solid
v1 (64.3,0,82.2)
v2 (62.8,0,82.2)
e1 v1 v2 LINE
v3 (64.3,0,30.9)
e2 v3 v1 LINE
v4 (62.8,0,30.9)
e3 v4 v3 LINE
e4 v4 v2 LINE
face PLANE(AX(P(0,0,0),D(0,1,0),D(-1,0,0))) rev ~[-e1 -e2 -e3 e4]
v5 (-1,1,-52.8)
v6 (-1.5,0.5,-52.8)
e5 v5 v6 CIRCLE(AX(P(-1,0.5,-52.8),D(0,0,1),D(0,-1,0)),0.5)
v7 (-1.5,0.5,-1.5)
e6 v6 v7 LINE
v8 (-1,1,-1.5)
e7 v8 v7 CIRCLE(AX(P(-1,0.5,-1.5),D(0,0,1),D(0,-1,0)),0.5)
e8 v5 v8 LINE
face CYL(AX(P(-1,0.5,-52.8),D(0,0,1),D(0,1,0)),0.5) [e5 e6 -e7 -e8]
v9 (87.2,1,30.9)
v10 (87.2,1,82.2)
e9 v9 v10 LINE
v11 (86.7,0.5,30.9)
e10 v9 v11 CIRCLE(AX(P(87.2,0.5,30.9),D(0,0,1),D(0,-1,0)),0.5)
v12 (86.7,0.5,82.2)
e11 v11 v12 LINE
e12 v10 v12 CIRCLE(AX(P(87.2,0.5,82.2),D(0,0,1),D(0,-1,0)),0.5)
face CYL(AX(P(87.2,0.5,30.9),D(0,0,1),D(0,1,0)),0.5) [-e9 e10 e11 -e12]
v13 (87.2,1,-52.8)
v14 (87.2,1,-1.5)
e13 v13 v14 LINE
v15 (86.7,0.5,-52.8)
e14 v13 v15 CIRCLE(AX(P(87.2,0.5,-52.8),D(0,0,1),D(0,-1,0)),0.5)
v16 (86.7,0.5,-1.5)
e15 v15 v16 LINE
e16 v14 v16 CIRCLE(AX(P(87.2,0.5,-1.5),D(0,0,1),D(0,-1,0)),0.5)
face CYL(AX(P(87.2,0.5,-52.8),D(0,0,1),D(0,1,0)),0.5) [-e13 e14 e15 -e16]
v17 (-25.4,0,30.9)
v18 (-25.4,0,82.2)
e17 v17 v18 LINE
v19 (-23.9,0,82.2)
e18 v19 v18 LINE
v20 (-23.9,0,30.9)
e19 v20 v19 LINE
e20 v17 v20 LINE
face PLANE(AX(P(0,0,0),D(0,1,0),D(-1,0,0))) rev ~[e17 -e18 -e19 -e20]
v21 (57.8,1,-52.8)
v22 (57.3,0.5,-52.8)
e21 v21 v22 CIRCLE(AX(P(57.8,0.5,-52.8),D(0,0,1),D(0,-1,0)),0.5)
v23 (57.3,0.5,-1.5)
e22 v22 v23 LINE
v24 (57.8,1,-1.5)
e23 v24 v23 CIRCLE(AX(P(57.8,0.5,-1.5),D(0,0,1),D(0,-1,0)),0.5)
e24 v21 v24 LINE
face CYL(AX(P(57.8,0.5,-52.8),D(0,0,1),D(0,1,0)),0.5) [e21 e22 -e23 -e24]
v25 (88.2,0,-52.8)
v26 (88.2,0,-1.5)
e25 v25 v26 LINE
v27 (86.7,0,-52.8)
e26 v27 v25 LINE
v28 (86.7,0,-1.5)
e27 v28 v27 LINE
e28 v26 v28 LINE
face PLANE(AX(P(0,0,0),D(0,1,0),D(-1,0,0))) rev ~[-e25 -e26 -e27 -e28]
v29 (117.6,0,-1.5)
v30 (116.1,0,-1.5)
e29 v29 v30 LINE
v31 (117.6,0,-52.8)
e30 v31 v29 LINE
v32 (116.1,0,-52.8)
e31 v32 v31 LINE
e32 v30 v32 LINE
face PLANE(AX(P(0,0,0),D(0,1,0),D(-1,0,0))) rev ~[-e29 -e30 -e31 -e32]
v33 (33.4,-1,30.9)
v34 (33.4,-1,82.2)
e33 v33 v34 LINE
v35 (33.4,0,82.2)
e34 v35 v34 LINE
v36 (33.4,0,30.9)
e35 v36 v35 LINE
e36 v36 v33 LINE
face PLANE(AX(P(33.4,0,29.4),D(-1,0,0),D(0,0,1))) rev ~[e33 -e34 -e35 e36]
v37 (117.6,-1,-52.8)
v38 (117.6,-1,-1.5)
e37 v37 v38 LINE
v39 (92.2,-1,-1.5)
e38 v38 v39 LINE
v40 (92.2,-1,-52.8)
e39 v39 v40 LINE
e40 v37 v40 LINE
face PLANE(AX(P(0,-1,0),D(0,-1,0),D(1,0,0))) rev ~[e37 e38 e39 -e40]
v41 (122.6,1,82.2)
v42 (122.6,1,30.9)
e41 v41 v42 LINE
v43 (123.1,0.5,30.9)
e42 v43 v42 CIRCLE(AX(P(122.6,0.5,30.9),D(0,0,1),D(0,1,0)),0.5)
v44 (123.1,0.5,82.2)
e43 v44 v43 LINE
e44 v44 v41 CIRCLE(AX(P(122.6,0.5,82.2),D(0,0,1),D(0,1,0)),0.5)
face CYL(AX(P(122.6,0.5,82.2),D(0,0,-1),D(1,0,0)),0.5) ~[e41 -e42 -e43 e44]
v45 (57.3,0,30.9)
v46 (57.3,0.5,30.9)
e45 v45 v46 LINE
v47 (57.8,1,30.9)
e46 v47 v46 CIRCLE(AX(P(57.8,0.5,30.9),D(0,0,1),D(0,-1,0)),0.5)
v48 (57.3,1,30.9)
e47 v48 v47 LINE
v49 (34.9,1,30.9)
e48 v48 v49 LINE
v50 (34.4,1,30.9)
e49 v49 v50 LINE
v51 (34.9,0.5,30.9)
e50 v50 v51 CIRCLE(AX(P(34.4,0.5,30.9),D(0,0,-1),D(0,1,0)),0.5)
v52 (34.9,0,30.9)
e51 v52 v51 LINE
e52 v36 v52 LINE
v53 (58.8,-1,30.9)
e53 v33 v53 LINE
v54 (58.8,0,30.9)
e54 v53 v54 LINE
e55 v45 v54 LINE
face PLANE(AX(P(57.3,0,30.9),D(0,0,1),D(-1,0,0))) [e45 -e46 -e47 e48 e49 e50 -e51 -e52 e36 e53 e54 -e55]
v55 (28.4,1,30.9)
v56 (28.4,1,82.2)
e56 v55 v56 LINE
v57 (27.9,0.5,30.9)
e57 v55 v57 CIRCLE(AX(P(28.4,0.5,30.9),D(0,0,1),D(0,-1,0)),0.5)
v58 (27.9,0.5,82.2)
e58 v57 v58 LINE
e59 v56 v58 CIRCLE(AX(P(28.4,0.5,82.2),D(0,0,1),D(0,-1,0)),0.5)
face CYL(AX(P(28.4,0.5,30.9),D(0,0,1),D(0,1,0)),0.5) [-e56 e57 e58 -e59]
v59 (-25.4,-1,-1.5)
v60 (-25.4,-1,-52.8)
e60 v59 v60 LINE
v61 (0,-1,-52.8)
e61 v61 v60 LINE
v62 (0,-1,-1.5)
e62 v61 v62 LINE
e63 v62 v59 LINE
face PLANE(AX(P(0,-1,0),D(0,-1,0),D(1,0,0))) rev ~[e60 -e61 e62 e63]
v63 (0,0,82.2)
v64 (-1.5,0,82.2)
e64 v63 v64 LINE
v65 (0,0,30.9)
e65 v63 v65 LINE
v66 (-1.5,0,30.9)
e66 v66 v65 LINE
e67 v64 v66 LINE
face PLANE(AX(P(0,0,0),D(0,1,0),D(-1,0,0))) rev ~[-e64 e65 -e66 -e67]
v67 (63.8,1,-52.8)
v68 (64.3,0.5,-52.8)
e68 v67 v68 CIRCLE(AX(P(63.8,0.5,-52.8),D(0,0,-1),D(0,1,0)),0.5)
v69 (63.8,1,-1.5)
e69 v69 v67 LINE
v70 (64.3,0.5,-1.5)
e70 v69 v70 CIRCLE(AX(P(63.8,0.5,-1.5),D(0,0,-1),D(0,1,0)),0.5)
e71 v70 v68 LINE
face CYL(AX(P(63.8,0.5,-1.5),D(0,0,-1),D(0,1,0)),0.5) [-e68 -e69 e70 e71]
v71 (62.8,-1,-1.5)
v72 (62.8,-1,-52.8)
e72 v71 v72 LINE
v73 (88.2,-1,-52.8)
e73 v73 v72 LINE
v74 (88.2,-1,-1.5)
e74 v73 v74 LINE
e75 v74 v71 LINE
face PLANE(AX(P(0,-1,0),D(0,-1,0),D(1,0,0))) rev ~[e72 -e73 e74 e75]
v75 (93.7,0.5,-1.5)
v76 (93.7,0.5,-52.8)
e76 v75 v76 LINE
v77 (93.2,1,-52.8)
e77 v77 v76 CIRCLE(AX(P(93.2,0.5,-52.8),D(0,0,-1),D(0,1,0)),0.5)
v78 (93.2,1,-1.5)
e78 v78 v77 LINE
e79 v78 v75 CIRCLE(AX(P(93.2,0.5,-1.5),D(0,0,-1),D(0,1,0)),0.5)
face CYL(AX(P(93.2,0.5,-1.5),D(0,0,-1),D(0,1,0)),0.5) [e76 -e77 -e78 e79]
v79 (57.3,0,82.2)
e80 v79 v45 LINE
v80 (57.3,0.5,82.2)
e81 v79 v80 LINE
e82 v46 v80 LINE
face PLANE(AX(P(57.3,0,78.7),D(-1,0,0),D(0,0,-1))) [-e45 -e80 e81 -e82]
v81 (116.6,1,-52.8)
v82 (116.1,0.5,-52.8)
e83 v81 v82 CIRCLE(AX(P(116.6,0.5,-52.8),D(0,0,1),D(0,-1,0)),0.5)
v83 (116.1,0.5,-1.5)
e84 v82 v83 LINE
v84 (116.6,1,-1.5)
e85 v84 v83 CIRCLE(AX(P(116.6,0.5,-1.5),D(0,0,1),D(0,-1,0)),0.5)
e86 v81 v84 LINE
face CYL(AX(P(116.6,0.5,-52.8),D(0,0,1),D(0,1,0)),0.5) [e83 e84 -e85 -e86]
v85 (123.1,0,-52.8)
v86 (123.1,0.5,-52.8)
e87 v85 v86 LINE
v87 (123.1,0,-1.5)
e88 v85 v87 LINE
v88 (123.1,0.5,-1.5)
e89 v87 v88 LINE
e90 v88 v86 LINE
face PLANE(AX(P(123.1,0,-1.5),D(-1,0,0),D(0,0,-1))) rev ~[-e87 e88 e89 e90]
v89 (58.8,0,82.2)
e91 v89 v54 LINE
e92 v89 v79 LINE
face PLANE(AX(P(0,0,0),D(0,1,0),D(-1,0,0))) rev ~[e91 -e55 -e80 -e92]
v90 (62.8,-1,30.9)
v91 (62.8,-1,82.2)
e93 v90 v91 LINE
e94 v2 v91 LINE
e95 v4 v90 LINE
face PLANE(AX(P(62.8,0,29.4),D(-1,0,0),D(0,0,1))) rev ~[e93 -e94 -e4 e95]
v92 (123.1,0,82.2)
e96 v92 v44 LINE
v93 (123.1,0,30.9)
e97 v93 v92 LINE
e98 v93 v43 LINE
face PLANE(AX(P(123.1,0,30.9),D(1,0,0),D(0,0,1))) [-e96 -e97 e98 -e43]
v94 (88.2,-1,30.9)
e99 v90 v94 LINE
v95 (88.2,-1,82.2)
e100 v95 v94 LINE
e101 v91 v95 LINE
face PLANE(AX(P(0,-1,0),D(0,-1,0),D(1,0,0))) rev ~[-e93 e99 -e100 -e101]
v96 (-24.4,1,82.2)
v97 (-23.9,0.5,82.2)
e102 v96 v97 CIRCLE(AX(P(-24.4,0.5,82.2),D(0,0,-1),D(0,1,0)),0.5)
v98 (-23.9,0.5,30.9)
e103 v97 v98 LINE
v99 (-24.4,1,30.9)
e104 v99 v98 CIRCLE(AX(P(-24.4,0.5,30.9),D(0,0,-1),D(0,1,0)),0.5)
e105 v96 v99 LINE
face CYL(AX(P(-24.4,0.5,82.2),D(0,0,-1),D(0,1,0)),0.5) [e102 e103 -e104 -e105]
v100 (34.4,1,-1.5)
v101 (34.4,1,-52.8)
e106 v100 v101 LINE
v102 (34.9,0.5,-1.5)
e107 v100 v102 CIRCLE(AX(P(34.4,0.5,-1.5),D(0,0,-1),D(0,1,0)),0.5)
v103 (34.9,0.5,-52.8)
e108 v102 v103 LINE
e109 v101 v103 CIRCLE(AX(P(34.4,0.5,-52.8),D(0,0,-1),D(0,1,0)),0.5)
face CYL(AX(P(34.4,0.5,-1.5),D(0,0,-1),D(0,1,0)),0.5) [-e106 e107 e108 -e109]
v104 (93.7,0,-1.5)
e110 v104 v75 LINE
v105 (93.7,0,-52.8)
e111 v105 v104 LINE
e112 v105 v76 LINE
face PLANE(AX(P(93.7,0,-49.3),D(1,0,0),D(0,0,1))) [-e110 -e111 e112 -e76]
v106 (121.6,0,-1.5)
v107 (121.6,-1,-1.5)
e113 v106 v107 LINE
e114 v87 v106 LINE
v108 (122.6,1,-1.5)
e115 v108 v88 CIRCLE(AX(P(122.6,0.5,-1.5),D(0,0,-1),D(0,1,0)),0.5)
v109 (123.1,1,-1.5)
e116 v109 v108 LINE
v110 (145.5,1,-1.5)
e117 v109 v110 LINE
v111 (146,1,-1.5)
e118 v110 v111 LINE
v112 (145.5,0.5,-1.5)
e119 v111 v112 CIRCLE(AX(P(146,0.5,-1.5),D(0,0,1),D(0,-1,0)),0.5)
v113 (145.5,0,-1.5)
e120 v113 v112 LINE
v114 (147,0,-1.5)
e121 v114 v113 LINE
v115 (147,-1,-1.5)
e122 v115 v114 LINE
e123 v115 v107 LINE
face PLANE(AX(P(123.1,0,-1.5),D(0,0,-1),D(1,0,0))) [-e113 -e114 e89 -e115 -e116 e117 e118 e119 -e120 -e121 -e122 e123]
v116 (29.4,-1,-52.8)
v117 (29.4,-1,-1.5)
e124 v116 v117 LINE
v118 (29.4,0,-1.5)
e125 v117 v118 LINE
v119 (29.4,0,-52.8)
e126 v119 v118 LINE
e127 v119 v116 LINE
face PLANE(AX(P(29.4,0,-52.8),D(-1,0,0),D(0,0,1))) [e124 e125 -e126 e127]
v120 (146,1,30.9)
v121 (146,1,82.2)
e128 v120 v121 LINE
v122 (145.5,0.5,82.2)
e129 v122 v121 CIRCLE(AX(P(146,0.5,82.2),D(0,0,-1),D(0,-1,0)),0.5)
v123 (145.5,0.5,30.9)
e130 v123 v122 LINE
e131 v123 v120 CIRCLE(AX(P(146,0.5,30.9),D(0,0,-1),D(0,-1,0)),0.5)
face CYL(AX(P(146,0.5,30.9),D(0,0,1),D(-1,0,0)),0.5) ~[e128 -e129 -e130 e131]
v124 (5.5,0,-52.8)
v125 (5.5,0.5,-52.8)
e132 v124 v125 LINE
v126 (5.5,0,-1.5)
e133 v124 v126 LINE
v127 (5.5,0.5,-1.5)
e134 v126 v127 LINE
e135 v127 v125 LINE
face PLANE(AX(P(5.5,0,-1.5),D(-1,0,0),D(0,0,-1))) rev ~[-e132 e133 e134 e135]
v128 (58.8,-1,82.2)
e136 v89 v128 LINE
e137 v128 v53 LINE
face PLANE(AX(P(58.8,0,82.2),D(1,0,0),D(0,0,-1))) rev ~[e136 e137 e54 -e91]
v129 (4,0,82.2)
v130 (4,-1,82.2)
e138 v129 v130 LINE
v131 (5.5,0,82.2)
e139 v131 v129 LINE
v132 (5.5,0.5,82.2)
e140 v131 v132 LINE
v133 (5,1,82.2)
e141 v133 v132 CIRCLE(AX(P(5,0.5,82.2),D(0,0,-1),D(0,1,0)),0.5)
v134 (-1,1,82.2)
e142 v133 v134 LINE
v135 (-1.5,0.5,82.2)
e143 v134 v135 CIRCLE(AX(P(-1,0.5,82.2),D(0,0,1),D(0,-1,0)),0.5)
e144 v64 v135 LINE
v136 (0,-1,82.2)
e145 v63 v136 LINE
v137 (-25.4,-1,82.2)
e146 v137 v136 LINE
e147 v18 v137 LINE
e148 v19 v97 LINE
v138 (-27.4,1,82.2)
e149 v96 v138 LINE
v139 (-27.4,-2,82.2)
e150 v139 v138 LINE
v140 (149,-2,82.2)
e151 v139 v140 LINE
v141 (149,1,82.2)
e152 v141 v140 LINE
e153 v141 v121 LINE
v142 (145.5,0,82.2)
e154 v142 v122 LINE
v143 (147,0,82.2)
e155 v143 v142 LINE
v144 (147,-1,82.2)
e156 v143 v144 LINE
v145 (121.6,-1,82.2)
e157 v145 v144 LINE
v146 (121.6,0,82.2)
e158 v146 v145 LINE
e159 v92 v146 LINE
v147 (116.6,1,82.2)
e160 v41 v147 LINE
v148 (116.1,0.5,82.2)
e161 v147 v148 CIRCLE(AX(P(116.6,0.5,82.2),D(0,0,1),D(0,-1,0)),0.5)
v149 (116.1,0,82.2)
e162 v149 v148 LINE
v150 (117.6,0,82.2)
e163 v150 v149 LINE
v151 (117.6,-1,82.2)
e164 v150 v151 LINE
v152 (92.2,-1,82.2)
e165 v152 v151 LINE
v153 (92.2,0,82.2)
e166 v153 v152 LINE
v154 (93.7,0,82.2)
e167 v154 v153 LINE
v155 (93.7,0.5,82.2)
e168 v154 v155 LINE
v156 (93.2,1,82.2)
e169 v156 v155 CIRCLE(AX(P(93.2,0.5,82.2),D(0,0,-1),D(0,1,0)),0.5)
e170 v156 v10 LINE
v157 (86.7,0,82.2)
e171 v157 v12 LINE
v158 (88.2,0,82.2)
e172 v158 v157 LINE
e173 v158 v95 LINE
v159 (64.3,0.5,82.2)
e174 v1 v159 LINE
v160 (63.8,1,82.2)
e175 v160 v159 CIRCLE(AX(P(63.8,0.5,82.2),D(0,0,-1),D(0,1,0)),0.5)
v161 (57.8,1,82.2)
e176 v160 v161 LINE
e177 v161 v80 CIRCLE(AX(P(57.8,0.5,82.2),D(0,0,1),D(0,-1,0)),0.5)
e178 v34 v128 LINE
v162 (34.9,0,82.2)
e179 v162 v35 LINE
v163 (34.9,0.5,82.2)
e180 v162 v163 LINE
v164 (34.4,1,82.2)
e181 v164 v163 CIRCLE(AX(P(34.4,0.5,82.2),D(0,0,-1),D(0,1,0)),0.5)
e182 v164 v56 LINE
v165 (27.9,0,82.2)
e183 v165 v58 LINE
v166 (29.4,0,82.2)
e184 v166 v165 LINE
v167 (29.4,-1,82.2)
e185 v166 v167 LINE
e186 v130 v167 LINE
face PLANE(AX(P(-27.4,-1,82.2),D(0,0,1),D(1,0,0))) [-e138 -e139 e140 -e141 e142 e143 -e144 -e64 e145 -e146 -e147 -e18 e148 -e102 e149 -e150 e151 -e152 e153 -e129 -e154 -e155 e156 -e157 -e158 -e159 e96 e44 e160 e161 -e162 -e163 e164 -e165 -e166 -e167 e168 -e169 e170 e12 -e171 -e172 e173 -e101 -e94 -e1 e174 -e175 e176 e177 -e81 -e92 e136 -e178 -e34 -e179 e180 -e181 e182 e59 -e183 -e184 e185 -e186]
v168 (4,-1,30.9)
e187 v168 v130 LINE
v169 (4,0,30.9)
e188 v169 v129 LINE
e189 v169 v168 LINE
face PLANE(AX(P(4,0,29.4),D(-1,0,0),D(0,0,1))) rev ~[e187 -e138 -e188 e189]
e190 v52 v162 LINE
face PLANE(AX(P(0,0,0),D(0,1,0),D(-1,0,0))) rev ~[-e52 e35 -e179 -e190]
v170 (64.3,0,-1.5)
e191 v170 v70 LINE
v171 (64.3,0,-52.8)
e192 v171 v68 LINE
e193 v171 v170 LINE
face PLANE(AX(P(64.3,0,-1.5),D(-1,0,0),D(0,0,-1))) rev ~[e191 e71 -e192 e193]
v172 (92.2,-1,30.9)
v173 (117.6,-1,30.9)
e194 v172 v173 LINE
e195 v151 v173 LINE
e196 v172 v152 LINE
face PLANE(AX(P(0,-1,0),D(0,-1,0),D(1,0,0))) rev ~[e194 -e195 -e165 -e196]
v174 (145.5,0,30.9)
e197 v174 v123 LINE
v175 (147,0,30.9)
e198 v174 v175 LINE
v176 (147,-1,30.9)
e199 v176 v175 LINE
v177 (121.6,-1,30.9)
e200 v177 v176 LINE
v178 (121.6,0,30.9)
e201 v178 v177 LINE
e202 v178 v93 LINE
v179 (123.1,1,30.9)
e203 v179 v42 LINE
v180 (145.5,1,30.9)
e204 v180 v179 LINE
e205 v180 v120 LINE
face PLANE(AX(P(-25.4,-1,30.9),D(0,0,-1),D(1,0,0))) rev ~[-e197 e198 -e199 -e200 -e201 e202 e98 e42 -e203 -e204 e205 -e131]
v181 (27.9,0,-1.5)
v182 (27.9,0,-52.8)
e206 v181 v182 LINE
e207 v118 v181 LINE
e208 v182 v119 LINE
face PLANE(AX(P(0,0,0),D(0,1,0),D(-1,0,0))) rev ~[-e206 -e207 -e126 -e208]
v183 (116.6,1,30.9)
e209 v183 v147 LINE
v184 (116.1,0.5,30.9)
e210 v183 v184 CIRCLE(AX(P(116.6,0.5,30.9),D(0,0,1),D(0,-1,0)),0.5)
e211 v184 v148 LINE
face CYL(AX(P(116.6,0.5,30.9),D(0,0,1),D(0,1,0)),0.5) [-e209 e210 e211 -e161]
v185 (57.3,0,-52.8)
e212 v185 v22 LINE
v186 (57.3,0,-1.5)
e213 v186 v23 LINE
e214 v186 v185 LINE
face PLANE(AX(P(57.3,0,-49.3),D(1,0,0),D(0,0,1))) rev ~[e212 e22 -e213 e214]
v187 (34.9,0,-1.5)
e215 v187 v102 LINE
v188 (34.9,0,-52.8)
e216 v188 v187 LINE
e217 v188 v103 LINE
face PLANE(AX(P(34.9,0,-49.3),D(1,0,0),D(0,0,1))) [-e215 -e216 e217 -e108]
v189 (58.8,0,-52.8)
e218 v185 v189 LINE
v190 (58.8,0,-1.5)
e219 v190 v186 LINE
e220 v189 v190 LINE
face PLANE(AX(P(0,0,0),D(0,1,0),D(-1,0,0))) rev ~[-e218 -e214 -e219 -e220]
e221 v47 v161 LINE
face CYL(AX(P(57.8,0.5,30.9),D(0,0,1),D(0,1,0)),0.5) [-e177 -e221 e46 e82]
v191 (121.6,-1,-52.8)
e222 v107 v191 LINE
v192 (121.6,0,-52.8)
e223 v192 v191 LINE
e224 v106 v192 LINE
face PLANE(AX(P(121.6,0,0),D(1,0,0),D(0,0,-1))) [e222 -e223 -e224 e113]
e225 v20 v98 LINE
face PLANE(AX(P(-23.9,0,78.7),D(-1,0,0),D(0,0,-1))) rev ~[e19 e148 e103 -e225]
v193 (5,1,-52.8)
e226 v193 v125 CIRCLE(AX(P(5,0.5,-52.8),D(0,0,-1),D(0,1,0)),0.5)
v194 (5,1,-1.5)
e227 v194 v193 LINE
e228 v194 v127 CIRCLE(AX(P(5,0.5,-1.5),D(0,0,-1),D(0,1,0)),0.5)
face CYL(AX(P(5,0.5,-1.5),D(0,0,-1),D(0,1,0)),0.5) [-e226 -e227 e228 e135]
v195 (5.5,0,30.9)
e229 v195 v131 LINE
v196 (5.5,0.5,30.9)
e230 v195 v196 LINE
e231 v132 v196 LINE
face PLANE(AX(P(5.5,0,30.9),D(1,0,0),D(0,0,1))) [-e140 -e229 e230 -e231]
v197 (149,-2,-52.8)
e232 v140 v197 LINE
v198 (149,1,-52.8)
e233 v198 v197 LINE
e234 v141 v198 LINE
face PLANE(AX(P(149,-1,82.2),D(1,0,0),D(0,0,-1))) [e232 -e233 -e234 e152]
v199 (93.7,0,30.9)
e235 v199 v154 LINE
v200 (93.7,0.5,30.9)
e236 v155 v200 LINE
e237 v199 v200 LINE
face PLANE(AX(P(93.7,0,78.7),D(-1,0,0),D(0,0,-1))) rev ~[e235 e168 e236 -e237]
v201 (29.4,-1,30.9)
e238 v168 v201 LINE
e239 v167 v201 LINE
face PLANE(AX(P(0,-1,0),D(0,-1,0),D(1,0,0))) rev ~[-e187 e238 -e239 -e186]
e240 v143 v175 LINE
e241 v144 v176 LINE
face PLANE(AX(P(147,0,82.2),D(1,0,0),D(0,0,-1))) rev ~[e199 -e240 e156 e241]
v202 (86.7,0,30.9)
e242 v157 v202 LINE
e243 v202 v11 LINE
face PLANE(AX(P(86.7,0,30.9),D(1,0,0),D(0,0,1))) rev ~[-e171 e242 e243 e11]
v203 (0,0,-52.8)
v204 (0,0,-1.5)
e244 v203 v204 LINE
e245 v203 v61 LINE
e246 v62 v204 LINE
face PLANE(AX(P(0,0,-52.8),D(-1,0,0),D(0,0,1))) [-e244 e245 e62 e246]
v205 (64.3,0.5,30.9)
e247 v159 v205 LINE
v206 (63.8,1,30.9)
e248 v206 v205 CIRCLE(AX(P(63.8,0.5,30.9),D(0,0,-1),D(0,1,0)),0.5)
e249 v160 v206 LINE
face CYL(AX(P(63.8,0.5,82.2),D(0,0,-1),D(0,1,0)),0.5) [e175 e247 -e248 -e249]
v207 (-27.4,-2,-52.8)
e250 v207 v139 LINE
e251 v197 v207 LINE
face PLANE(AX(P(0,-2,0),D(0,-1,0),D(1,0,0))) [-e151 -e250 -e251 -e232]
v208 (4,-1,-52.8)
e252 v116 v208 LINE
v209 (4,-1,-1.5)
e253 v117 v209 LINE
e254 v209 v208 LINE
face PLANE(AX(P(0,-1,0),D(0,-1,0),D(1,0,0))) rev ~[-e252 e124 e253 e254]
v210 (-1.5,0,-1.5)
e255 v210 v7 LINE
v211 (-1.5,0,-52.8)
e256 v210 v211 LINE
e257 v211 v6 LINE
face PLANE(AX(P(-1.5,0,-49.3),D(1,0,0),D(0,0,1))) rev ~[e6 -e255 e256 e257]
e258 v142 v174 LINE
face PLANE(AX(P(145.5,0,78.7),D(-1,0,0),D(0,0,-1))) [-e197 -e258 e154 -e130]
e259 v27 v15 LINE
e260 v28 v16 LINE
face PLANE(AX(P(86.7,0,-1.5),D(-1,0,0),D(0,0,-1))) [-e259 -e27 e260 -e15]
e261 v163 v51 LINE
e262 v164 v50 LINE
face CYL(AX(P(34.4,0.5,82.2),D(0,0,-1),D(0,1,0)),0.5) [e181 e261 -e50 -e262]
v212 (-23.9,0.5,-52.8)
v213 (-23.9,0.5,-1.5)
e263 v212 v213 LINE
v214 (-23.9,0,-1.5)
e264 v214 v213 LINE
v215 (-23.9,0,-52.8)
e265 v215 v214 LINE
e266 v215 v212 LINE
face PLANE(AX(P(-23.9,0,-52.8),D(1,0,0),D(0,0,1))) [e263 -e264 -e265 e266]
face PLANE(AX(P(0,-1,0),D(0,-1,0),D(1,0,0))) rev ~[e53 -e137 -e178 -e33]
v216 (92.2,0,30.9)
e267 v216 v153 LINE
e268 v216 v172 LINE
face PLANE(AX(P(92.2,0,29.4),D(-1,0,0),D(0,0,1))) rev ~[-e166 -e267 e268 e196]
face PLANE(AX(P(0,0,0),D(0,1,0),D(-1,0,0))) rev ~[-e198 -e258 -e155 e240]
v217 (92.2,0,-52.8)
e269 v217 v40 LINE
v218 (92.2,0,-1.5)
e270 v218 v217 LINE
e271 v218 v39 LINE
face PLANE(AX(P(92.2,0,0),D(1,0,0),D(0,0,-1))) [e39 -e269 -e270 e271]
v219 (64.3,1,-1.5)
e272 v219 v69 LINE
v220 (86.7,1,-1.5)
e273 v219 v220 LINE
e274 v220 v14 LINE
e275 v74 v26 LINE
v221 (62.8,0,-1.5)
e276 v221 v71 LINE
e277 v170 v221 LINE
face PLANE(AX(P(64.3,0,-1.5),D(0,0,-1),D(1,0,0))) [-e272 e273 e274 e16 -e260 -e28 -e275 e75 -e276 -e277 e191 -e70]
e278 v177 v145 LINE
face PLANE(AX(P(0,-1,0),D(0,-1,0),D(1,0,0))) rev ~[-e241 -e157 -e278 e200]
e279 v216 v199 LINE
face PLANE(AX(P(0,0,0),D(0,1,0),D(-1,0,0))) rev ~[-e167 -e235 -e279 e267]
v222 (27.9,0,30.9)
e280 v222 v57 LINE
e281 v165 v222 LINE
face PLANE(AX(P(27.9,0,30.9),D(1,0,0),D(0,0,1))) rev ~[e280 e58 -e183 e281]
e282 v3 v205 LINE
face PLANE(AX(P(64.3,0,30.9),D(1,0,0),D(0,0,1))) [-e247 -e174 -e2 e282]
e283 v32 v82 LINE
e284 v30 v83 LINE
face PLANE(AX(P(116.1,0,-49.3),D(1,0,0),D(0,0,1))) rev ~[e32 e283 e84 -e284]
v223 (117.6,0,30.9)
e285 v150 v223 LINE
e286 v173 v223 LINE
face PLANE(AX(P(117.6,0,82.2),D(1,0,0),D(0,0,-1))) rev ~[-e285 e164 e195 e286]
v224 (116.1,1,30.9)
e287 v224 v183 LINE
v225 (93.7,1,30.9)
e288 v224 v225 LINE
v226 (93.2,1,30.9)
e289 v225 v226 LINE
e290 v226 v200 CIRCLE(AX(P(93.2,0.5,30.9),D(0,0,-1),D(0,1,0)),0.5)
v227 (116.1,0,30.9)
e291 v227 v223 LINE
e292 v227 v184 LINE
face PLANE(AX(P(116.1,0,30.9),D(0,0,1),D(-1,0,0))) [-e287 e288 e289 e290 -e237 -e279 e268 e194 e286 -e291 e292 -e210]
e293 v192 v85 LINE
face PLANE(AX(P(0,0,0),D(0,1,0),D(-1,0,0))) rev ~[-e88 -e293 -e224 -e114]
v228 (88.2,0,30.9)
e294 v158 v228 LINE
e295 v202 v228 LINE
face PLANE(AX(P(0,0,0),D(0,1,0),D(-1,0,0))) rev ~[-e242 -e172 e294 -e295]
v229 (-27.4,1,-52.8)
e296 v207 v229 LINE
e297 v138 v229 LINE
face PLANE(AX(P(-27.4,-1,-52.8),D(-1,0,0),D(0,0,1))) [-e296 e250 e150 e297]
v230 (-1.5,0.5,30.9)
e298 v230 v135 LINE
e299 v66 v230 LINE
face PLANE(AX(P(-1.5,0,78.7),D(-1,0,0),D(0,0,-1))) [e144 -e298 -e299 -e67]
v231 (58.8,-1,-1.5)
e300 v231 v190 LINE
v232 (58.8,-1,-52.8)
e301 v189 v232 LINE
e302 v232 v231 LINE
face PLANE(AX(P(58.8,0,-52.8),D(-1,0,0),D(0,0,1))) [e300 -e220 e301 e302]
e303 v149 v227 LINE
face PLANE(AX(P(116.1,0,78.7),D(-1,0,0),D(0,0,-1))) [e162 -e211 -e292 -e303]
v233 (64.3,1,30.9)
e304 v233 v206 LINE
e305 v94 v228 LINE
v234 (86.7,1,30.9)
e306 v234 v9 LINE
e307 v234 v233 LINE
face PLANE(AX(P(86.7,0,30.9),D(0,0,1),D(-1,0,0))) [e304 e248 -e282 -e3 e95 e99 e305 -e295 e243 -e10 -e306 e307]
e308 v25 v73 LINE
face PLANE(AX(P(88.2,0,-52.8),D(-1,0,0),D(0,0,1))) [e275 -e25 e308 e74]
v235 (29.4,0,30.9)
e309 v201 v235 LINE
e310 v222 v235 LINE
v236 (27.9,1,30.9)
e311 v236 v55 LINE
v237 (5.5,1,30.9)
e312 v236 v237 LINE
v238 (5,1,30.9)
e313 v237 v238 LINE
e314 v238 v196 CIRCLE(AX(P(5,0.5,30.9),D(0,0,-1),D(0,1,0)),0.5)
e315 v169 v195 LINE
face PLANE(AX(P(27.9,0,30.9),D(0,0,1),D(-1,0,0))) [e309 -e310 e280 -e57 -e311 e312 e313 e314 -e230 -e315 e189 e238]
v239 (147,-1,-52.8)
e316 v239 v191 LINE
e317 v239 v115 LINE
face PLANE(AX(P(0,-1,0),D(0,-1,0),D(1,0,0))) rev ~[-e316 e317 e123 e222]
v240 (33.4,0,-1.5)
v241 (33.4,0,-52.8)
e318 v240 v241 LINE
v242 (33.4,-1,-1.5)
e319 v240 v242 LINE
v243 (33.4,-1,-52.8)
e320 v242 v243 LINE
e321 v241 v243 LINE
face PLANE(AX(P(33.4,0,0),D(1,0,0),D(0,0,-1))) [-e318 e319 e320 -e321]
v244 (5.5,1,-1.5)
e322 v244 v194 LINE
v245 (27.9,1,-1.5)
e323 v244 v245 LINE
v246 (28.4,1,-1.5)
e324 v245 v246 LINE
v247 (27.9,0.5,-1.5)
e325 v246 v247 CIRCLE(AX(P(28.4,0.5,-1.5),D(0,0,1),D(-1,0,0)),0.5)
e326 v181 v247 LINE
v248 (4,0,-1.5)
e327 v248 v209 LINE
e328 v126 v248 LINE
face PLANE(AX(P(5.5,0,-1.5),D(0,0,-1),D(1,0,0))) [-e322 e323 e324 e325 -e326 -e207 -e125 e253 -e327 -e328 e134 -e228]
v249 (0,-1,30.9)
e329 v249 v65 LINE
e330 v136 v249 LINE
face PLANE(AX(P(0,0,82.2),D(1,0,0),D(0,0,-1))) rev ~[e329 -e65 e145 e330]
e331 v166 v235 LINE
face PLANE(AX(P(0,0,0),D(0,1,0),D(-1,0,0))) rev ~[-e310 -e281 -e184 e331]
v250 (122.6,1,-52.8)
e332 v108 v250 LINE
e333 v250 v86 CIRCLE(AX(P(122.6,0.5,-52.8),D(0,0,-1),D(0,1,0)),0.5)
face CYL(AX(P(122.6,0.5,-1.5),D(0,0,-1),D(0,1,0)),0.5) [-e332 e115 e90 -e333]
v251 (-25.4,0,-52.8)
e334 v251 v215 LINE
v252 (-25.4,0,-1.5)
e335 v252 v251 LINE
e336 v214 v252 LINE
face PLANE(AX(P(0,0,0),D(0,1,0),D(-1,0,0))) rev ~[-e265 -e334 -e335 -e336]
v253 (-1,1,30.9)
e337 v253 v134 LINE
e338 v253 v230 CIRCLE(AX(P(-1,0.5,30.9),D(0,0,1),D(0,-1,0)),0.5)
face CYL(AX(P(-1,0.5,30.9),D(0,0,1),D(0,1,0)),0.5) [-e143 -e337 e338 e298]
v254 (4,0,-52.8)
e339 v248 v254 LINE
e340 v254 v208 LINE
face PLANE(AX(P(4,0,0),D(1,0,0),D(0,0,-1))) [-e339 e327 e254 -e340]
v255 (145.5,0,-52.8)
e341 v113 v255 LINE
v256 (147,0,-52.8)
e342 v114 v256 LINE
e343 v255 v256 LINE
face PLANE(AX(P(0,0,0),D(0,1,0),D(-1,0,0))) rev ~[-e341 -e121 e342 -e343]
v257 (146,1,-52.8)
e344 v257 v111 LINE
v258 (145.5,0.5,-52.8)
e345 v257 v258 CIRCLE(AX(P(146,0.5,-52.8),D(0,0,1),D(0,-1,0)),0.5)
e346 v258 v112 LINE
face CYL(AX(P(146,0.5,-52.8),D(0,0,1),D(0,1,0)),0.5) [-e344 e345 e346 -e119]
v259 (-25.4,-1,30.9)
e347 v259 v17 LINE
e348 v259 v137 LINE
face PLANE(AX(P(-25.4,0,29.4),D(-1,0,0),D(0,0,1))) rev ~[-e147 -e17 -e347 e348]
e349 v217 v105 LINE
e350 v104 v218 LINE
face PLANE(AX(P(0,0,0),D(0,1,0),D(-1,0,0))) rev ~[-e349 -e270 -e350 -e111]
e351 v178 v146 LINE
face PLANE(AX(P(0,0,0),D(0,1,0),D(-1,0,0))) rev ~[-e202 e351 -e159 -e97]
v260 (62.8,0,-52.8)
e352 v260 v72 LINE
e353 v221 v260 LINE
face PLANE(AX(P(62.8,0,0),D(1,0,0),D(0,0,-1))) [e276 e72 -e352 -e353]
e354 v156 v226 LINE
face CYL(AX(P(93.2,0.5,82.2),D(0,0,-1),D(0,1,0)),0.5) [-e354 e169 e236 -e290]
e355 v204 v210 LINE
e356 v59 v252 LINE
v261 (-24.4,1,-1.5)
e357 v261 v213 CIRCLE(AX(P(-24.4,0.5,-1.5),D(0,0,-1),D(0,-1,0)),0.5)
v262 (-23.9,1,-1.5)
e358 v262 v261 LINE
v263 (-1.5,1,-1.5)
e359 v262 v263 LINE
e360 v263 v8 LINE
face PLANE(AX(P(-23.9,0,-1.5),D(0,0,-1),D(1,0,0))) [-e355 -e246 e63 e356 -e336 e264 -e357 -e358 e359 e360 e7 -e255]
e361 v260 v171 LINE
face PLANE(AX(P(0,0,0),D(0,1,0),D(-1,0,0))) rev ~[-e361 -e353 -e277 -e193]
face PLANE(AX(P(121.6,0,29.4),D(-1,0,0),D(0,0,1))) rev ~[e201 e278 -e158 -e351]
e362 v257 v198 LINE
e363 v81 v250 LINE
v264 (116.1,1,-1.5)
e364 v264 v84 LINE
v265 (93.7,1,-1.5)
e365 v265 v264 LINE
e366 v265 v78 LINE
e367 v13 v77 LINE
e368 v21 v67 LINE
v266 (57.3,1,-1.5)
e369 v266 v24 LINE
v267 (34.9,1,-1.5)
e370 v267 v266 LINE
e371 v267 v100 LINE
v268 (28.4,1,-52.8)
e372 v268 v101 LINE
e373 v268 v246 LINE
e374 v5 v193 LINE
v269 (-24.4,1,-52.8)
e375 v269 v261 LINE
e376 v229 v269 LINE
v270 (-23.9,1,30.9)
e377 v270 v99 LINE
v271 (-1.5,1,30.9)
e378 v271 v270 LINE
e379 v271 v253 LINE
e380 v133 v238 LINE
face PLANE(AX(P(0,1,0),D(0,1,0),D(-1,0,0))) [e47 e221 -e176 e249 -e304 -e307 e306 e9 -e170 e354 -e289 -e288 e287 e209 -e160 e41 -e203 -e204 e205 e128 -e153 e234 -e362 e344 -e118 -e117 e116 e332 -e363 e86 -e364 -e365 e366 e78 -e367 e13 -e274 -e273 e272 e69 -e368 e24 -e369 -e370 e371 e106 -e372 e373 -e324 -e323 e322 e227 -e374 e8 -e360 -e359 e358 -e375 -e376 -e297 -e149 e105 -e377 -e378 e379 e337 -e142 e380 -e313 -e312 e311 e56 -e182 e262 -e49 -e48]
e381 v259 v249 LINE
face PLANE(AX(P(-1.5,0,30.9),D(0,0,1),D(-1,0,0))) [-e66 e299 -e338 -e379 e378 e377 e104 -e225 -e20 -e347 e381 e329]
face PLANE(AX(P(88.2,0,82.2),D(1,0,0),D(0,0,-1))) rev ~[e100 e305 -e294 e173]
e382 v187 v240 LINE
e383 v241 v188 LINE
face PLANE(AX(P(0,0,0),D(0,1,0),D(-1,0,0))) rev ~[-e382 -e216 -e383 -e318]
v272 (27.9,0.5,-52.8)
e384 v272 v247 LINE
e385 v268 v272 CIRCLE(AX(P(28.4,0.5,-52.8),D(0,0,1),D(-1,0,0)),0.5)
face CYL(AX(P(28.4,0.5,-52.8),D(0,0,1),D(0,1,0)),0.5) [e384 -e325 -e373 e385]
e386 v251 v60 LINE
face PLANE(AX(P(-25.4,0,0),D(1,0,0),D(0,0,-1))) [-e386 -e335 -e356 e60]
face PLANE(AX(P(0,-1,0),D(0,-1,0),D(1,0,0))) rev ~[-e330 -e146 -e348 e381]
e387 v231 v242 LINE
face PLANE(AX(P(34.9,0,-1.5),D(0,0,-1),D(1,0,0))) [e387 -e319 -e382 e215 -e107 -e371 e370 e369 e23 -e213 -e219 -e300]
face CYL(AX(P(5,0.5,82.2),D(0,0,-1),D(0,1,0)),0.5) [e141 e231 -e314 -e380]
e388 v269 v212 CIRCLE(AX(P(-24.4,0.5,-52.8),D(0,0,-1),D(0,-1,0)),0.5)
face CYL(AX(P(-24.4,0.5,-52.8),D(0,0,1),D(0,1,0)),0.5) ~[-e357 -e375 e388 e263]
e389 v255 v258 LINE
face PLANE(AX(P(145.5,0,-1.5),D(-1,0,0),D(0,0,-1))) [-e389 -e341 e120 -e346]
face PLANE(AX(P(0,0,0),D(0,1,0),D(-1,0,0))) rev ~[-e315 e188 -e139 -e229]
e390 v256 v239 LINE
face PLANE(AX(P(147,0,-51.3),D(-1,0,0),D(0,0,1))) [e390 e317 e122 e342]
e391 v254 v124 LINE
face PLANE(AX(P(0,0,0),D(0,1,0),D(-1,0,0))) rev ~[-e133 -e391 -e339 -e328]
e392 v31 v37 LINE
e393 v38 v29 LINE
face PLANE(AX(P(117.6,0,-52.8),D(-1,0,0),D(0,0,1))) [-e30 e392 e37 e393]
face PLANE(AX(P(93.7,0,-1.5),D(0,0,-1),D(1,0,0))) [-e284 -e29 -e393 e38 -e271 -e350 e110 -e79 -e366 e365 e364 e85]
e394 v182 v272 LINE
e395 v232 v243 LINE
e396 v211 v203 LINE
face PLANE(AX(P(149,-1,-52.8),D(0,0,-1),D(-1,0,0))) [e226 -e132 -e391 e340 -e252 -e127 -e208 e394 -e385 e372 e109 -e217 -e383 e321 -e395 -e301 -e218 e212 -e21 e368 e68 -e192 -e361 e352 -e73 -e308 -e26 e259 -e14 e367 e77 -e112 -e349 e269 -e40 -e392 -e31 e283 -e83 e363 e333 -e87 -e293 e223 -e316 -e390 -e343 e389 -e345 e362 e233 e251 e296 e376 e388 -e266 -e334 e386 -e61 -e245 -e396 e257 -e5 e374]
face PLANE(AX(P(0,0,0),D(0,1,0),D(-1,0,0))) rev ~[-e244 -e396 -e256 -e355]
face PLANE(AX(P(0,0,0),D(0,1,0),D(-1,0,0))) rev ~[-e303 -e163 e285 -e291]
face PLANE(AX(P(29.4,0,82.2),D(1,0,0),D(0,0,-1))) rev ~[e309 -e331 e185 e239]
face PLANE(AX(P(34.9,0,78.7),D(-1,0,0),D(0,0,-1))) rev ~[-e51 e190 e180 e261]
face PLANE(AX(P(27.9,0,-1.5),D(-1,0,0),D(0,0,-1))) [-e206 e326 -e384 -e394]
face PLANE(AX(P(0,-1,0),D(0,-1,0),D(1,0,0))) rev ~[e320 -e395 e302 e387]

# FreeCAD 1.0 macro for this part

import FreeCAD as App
import Part
import Sketcher

V = App.Vector
Q = App.Units.Quantity


def edges_at(feature, points):
    """Names of the edges that pass closest to the given points."""
    edges = feature.Shape.Edges
    near = lambda p: min(range(len(edges)), key=lambda i: edges[i].distToShape(Part.Vertex(*p))[0])
    return sorted({f"Edge{near(p) + 1}" for p in points})


def add_polygon(sketch, points):
    """Adds a closed chain of lines whose ends are joined by coincident constraints."""
    first, n = sketch.GeometryCount, len(points)
    for a, b in zip(points, points[1:] + points[:1]):
        sketch.addGeometry(Part.LineSegment(App.Vector(*a, 0), App.Vector(*b, 0)), False)
    for i in range(n):
        sketch.addConstraint(Sketcher.Constraint("Coincident", first + i, 2, first + (i + 1) % n, 1))

doc = App.newDocument("Part")
body = doc.addObject("PartDesign::Body", "Body")

sketch1 = body.newObject("Sketcher::SketchObject", "Sketch")
sketch1.AttachmentSupport = (doc.getObject("XZ_Plane"), [""])
sketch1.MapMode = "FlatFace"
add_polygon(sketch1, [(-23.9, -52.8), (-27.4, -52.8), (-27.4, 82.2), (-23.9, 82.2), (-23.9, 30.9), (-1.5, 30.9), (-1.5, 82.2), (5.5, 82.2), (5.5, 30.9), (27.9, 30.9), (27.9, 82.2), (34.9, 82.2), (34.9, 30.9), (57.3, 30.9), (57.3, 82.2), (64.3, 82.2), (64.3, 30.9), (86.7, 30.9), (86.7, 82.2), (93.7, 82.2), (93.7, 30.9), (116.1, 30.9), (116.1, 82.2), (123.1, 82.2), (123.1, 30.9), (145.5, 30.9), (145.5, 82.2), (149, 82.2), (149, -52.8), (145.5, -52.8), (145.5, -1.5), (123.1, -1.5), (123.1, -52.8), (116.1, -52.8), (116.1, -1.5), (93.7, -1.5), (93.7, -52.8), (86.7, -52.8), (86.7, -1.5), (64.3, -1.5), (64.3, -52.8), (57.3, -52.8), (57.3, -1.5), (34.9, -1.5), (34.9, -52.8), (27.9, -52.8), (27.9, -1.5), (5.5, -1.5), (5.5, -52.8), (-1.5, -52.8), (-1.5, -1.5), (-23.9, -1.5)])
sketch1.addConstraint(Sketcher.Constraint("Horizontal", 0))
sketch1.addConstraint(Sketcher.Constraint("Vertical", 1))
sketch1.addConstraint(Sketcher.Constraint("Horizontal", 2))
sketch1.addConstraint(Sketcher.Constraint("Vertical", 3))
sketch1.addConstraint(Sketcher.Constraint("Horizontal", 4))
sketch1.addConstraint(Sketcher.Constraint("Vertical", 5))
sketch1.addConstraint(Sketcher.Constraint("Horizontal", 6))
sketch1.addConstraint(Sketcher.Constraint("Vertical", 7))
sketch1.addConstraint(Sketcher.Constraint("Horizontal", 8))
sketch1.addConstraint(Sketcher.Constraint("Vertical", 9))
sketch1.addConstraint(Sketcher.Constraint("Horizontal", 10))
sketch1.addConstraint(Sketcher.Constraint("Vertical", 11))
sketch1.addConstraint(Sketcher.Constraint("Horizontal", 12))
sketch1.addConstraint(Sketcher.Constraint("Vertical", 13))
sketch1.addConstraint(Sketcher.Constraint("Horizontal", 14))
sketch1.addConstraint(Sketcher.Constraint("Vertical", 15))
sketch1.addConstraint(Sketcher.Constraint("Horizontal", 16))
sketch1.addConstraint(Sketcher.Constraint("Vertical", 17))
sketch1.addConstraint(Sketcher.Constraint("Horizontal", 18))
sketch1.addConstraint(Sketcher.Constraint("Vertical", 19))
sketch1.addConstraint(Sketcher.Constraint("Horizontal", 20))
sketch1.addConstraint(Sketcher.Constraint("Vertical", 21))
sketch1.addConstraint(Sketcher.Constraint("Horizontal", 22))
sketch1.addConstraint(Sketcher.Constraint("Vertical", 23))
sketch1.addConstraint(Sketcher.Constraint("Horizontal", 24))
sketch1.addConstraint(Sketcher.Constraint("Vertical", 25))
sketch1.addConstraint(Sketcher.Constraint("Horizontal", 26))
sketch1.addConstraint(Sketcher.Constraint("Vertical", 27))
sketch1.addConstraint(Sketcher.Constraint("Horizontal", 28))
sketch1.addConstraint(Sketcher.Constraint("Vertical", 29))
sketch1.addConstraint(Sketcher.Constraint("Horizontal", 30))
sketch1.addConstraint(Sketcher.Constraint("Vertical", 31))
sketch1.addConstraint(Sketcher.Constraint("Horizontal", 32))
sketch1.addConstraint(Sketcher.Constraint("Vertical", 33))
sketch1.addConstraint(Sketcher.Constraint("Horizontal", 34))
sketch1.addConstraint(Sketcher.Constraint("Vertical", 35))
sketch1.addConstraint(Sketcher.Constraint("Horizontal", 36))
sketch1.addConstraint(Sketcher.Constraint("Vertical", 37))
sketch1.addConstraint(Sketcher.Constraint("Horizontal", 38))
sketch1.addConstraint(Sketcher.Constraint("Vertical", 39))
sketch1.addConstraint(Sketcher.Constraint("Horizontal", 40))
sketch1.addConstraint(Sketcher.Constraint("Vertical", 41))
sketch1.addConstraint(Sketcher.Constraint("Horizontal", 42))
sketch1.addConstraint(Sketcher.Constraint("Vertical", 43))
sketch1.addConstraint(Sketcher.Constraint("Horizontal", 44))
sketch1.addConstraint(Sketcher.Constraint("Vertical", 45))
sketch1.addConstraint(Sketcher.Constraint("Horizontal", 46))
sketch1.addConstraint(Sketcher.Constraint("Vertical", 47))
sketch1.addConstraint(Sketcher.Constraint("Horizontal", 48))
sketch1.addConstraint(Sketcher.Constraint("Vertical", 49))
sketch1.addConstraint(Sketcher.Constraint("Horizontal", 50))
sketch1.addConstraint(Sketcher.Constraint("Vertical", 51))
sketch1.addConstraint(Sketcher.Constraint("Horizontal", 2, 2, 5, 2))
sketch1.addConstraint(Sketcher.Constraint("Horizontal", 4, 2, 7, 2))
sketch1.addConstraint(Sketcher.Constraint("Horizontal", 6, 2, 9, 2))
sketch1.addConstraint(Sketcher.Constraint("Horizontal", 8, 2, 11, 2))
sketch1.addConstraint(Sketcher.Constraint("Horizontal", 10, 2, 13, 2))
sketch1.addConstraint(Sketcher.Constraint("Horizontal", 12, 2, 15, 2))
sketch1.addConstraint(Sketcher.Constraint("Horizontal", 14, 2, 17, 2))
sketch1.addConstraint(Sketcher.Constraint("Horizontal", 16, 2, 19, 2))
sketch1.addConstraint(Sketcher.Constraint("Horizontal", 18, 2, 21, 2))
sketch1.addConstraint(Sketcher.Constraint("Horizontal", 20, 2, 23, 2))
sketch1.addConstraint(Sketcher.Constraint("Horizontal", 22, 2, 25, 2))
sketch1.addConstraint(Sketcher.Constraint("Horizontal", 0, 2, 27, 2))
sketch1.addConstraint(Sketcher.Constraint("Horizontal", 28, 2, 31, 2))
sketch1.addConstraint(Sketcher.Constraint("Horizontal", 30, 2, 33, 2))
sketch1.addConstraint(Sketcher.Constraint("Horizontal", 32, 2, 35, 2))
sketch1.addConstraint(Sketcher.Constraint("Horizontal", 34, 2, 37, 2))
sketch1.addConstraint(Sketcher.Constraint("Horizontal", 36, 2, 39, 2))
sketch1.addConstraint(Sketcher.Constraint("Horizontal", 38, 2, 41, 2))
sketch1.addConstraint(Sketcher.Constraint("Horizontal", 40, 2, 43, 2))
sketch1.addConstraint(Sketcher.Constraint("Horizontal", 42, 2, 45, 2))
sketch1.addConstraint(Sketcher.Constraint("Horizontal", 44, 2, 47, 2))
sketch1.addConstraint(Sketcher.Constraint("Horizontal", 46, 2, 49, 2))
sketch1.addConstraint(Sketcher.Constraint("Vertical", 25, 2, 28, 2))
sketch1.addConstraint(Sketcher.Constraint("Vertical", 23, 2, 30, 2))
sketch1.addConstraint(Sketcher.Constraint("Vertical", 21, 2, 32, 2))
sketch1.addConstraint(Sketcher.Constraint("Vertical", 19, 2, 34, 2))
sketch1.addConstraint(Sketcher.Constraint("Vertical", 17, 2, 36, 2))
sketch1.addConstraint(Sketcher.Constraint("Vertical", 15, 2, 38, 2))
sketch1.addConstraint(Sketcher.Constraint("Vertical", 13, 2, 40, 2))
sketch1.addConstraint(Sketcher.Constraint("Vertical", 11, 2, 42, 2))
sketch1.addConstraint(Sketcher.Constraint("Vertical", 9, 2, 44, 2))
sketch1.addConstraint(Sketcher.Constraint("Vertical", 7, 2, 46, 2))
sketch1.addConstraint(Sketcher.Constraint("Vertical", 5, 2, 48, 2))
sketch1.addConstraint(Sketcher.Constraint("Vertical", 3, 2, 50, 2))
sketch1.addConstraint(Sketcher.Constraint("Equal", 4, 8))
sketch1.addConstraint(Sketcher.Constraint("Equal", 6, 10))
sketch1.addConstraint(Sketcher.Constraint("Equal", 8, 12))
sketch1.addConstraint(Sketcher.Constraint("Equal", 10, 14))
sketch1.addConstraint(Sketcher.Constraint("Equal", 12, 16))
sketch1.addConstraint(Sketcher.Constraint("Equal", 14, 18))
sketch1.addConstraint(Sketcher.Constraint("Equal", 16, 20))
sketch1.addConstraint(Sketcher.Constraint("Equal", 18, 22))
sketch1.addConstraint(Sketcher.Constraint("Equal", 20, 24))
sketch1.addConstraint(Sketcher.Constraint("Equal", 2, 26))
sketch1.addConstraint(Sketcher.Constraint("Equal", 25, 29))
sketch1.addConstraint(Sketcher.Constraint("DistanceX", 4, 2, -1, 1, Q("1.5 mm")))
sketch1.addConstraint(Sketcher.Constraint("DistanceY", 29, 2, -1, 1, Q("1.5 mm")))
sketch1.addConstraint(Sketcher.Constraint("DistanceX", 2, 2, 6, 2, Q("29.4 mm")))
sketch1.addConstraint(Sketcher.Constraint("DistanceX", 6, 1, 6, 2, Q("7 mm")))
sketch1.addConstraint(Sketcher.Constraint("DistanceY", 1, 1, 1, 2, Q("135 mm")))
sketch1.addConstraint(Sketcher.Constraint("DistanceX", 0, 2, 0, 1, Q("3.5 mm")))
sketch1.addConstraint(Sketcher.Constraint("DistanceY", 3, 2, 3, 1, Q("51.3 mm")))
pad1 = body.newObject("PartDesign::Pad", "Pad")
pad1.Profile = sketch1
pad1.Length = 1
pad1.Reversed = True

sketch2 = body.newObject("Sketcher::SketchObject", "Sketch001")
sketch2.AttachmentSupport = (doc.getObject("XZ_Plane"), [""])
sketch2.MapMode = "FlatFace"
add_polygon(sketch2, [(147, 0), (147, -52.8), (149, -52.8), (149, 82.2), (147, 82.2), (147, 29.4), (121.6, 29.4), (121.6, 82.2), (117.6, 82.2), (117.6, 29.4), (92.2, 29.4), (92.2, 82.2), (88.2, 82.2), (88.2, 29.4), (62.8, 29.4), (62.8, 82.2), (58.8, 82.2), (58.8, 29.4), (33.4, 29.4), (33.4, 82.2), (29.4, 82.2), (29.4, 29.4), (4, 29.4), (4, 82.2), (0, 82.2), (0, 29.4), (-25.4, 29.4), (-25.4, 82.2), (-27.4, 82.2), (-27.4, -52.8), (-25.4, -52.8), (-25.4, 0), (0, 0), (0, -52.8), (4, -52.8), (4, 0), (29.4, 0), (29.4, -52.8), (33.4, -52.8), (33.4, 0), (58.8, 0), (58.8, -52.8), (62.8, -52.8), (62.8, 0), (88.2, 0), (88.2, -52.8), (92.2, -52.8), (92.2, 0), (117.6, 0), (117.6, -52.8), (121.6, -52.8), (121.6, 0)])
sketch2.addConstraint(Sketcher.Constraint("Vertical", 0))
sketch2.addConstraint(Sketcher.Constraint("Horizontal", 1))
sketch2.addConstraint(Sketcher.Constraint("Vertical", 2))
sketch2.addConstraint(Sketcher.Constraint("Horizontal", 3))
sketch2.addConstraint(Sketcher.Constraint("Vertical", 4))
sketch2.addConstraint(Sketcher.Constraint("Horizontal", 5))
sketch2.addConstraint(Sketcher.Constraint("Vertical", 6))
sketch2.addConstraint(Sketcher.Constraint("Horizontal", 7))
sketch2.addConstraint(Sketcher.Constraint("Vertical", 8))
sketch2.addConstraint(Sketcher.Constraint("Horizontal", 9))
sketch2.addConstraint(Sketcher.Constraint("Vertical", 10))
sketch2.addConstraint(Sketcher.Constraint("Horizontal", 11))
sketch2.addConstraint(Sketcher.Constraint("Vertical", 12))
sketch2.addConstraint(Sketcher.Constraint("Horizontal", 13))
sketch2.addConstraint(Sketcher.Constraint("Vertical", 14))
sketch2.addConstraint(Sketcher.Constraint("Horizontal", 15))
sketch2.addConstraint(Sketcher.Constraint("Vertical", 16))
sketch2.addConstraint(Sketcher.Constraint("Horizontal", 17))
sketch2.addConstraint(Sketcher.Constraint("Vertical", 18))
sketch2.addConstraint(Sketcher.Constraint("Horizontal", 19))
sketch2.addConstraint(Sketcher.Constraint("Vertical", 20))
sketch2.addConstraint(Sketcher.Constraint("Horizontal", 21))
sketch2.addConstraint(Sketcher.Constraint("Vertical", 22))
sketch2.addConstraint(Sketcher.Constraint("Horizontal", 23))
sketch2.addConstraint(Sketcher.Constraint("Vertical", 24))
sketch2.addConstraint(Sketcher.Constraint("Horizontal", 25))
sketch2.addConstraint(Sketcher.Constraint("Vertical", 26))
sketch2.addConstraint(Sketcher.Constraint("Horizontal", 27))
sketch2.addConstraint(Sketcher.Constraint("Vertical", 28))
sketch2.addConstraint(Sketcher.Constraint("Horizontal", 29))
sketch2.addConstraint(Sketcher.Constraint("Vertical", 30))
sketch2.addConstraint(Sketcher.Constraint("Horizontal", 31))
sketch2.addConstraint(Sketcher.Constraint("Vertical", 32))
sketch2.addConstraint(Sketcher.Constraint("Horizontal", 33))
sketch2.addConstraint(Sketcher.Constraint("Vertical", 34))
sketch2.addConstraint(Sketcher.Constraint("Horizontal", 35))
sketch2.addConstraint(Sketcher.Constraint("Vertical", 36))
sketch2.addConstraint(Sketcher.Constraint("Horizontal", 37))
sketch2.addConstraint(Sketcher.Constraint("Vertical", 38))
sketch2.addConstraint(Sketcher.Constraint("Horizontal", 39))
sketch2.addConstraint(Sketcher.Constraint("Vertical", 40))
sketch2.addConstraint(Sketcher.Constraint("Horizontal", 41))
sketch2.addConstraint(Sketcher.Constraint("Vertical", 42))
sketch2.addConstraint(Sketcher.Constraint("Horizontal", 43))
sketch2.addConstraint(Sketcher.Constraint("Vertical", 44))
sketch2.addConstraint(Sketcher.Constraint("Horizontal", 45))
sketch2.addConstraint(Sketcher.Constraint("Vertical", 46))
sketch2.addConstraint(Sketcher.Constraint("Horizontal", 47))
sketch2.addConstraint(Sketcher.Constraint("Vertical", 48))
sketch2.addConstraint(Sketcher.Constraint("Horizontal", 49))
sketch2.addConstraint(Sketcher.Constraint("Vertical", 50))
sketch2.addConstraint(Sketcher.Constraint("Horizontal", 51))
sketch2.addConstraint(Sketcher.Constraint("Coincident", 31, 2, -1, 1))
sketch2.addConstraint(Sketcher.Constraint("PointOnObject", 23, 2, -2))
sketch2.addConstraint(Sketcher.Constraint("PointOnObject", 34, 2, -1))
sketch2.addConstraint(Sketcher.Constraint("PointOnObject", 38, 2, -1))
sketch2.addConstraint(Sketcher.Constraint("PointOnObject", 42, 2, -1))
sketch2.addConstraint(Sketcher.Constraint("PointOnObject", 46, 2, -1))
sketch2.addConstraint(Sketcher.Constraint("PointOnObject", 50, 2, -1))
sketch2.addConstraint(Sketcher.Constraint("Horizontal", 3, 2, 6, 2))
sketch2.addConstraint(Sketcher.Constraint("Horizontal", 5, 2, 8, 2))
sketch2.addConstraint(Sketcher.Constraint("Horizontal", 7, 2, 10, 2))
sketch2.addConstraint(Sketcher.Constraint("Horizontal", 9, 2, 12, 2))
sketch2.addConstraint(Sketcher.Constraint("Horizontal", 11, 2, 14, 2))
sketch2.addConstraint(Sketcher.Constraint("Horizontal", 13, 2, 16, 2))
sketch2.addConstraint(Sketcher.Constraint("Horizontal", 15, 2, 18, 2))
sketch2.addConstraint(Sketcher.Constraint("Horizontal", 17, 2, 20, 2))
sketch2.addConstraint(Sketcher.Constraint("Horizontal", 19, 2, 22, 2))
sketch2.addConstraint(Sketcher.Constraint("Horizontal", 21, 2, 24, 2))
sketch2.addConstraint(Sketcher.Constraint("Horizontal", 23, 2, 26, 2))
sketch2.addConstraint(Sketcher.Constraint("Horizontal", 1, 2, 28, 2))
sketch2.addConstraint(Sketcher.Constraint("Horizontal", 29, 2, 32, 2))
sketch2.addConstraint(Sketcher.Constraint("Horizontal", 33, 2, 36, 2))
sketch2.addConstraint(Sketcher.Constraint("Horizontal", 37, 2, 40, 2))
sketch2.addConstraint(Sketcher.Constraint("Horizontal", 41, 2, 44, 2))
sketch2.addConstraint(Sketcher.Constraint("Horizontal", 45, 2, 48, 2))
sketch2.addConstraint(Sketcher.Constraint("Vertical", 0, 2, 3, 2))
sketch2.addConstraint(Sketcher.Constraint("Vertical", 26, 2, 29, 2))
sketch2.addConstraint(Sketcher.Constraint("Vertical", 22, 2, 33, 2))
sketch2.addConstraint(Sketcher.Constraint("Vertical", 20, 2, 35, 2))
sketch2.addConstraint(Sketcher.Constraint("Vertical", 18, 2, 37, 2))
sketch2.addConstraint(Sketcher.Constraint("Vertical", 16, 2, 39, 2))
sketch2.addConstraint(Sketcher.Constraint("Vertical", 14, 2, 41, 2))
sketch2.addConstraint(Sketcher.Constraint("Vertical", 12, 2, 43, 2))
sketch2.addConstraint(Sketcher.Constraint("Vertical", 10, 2, 45, 2))
sketch2.addConstraint(Sketcher.Constraint("Vertical", 8, 2, 47, 2))
sketch2.addConstraint(Sketcher.Constraint("Vertical", 6, 2, 49, 2))
sketch2.addConstraint(Sketcher.Constraint("Equal", 5, 9))
sketch2.addConstraint(Sketcher.Constraint("Equal", 7, 11))
sketch2.addConstraint(Sketcher.Constraint("Equal", 9, 13))
sketch2.addConstraint(Sketcher.Constraint("Equal", 11, 15))
sketch2.addConstraint(Sketcher.Constraint("Equal", 13, 17))
sketch2.addConstraint(Sketcher.Constraint("Equal", 15, 19))
sketch2.addConstraint(Sketcher.Constraint("Equal", 17, 21))
sketch2.addConstraint(Sketcher.Constraint("Equal", 19, 23))
sketch2.addConstraint(Sketcher.Constraint("Equal", 21, 25))
sketch2.addConstraint(Sketcher.Constraint("Equal", 3, 27))
sketch2.addConstraint(Sketcher.Constraint("Equal", 0, 4))
sketch2.addConstraint(Sketcher.Constraint("DistanceX", 1, 1, 1, 2, Q("2 mm")))
sketch2.addConstraint(Sketcher.Constraint("DistanceX", 7, 2, 7, 1, Q("4 mm")))
sketch2.addConstraint(Sketcher.Constraint("DistanceY", 2, 1, 2, 2, Q("135 mm")))
sketch2.addConstraint(Sketcher.Constraint("DistanceX", 5, 2, 5, 1, Q("25.4 mm")))
sketch2.addConstraint(Sketcher.Constraint("DistanceY", 0, 2, 0, 1, Q("52.8 mm")))
pad2 = body.newObject("PartDesign::Pad", "Pad001")
pad2.Profile = sketch2
pad2.Length = 1

sketch3 = body.newObject("Sketcher::SketchObject", "Sketch002")
sketch3.AttachmentSupport = (doc.getObject("XZ_Plane"), [""])
sketch3.MapMode = "FlatFace"
sketch3.AttachmentOffset = App.Placement(V(0, 0, 1), App.Rotation())
add_polygon(sketch3, [(-27.4, -52.8), (149, -52.8), (149, 82.2), (-27.4, 82.2)])
sketch3.addConstraint(Sketcher.Constraint("Horizontal", 0))
sketch3.addConstraint(Sketcher.Constraint("Vertical", 1))
sketch3.addConstraint(Sketcher.Constraint("Horizontal", 2))
sketch3.addConstraint(Sketcher.Constraint("Vertical", 3))
sketch3.addConstraint(Sketcher.Constraint("DistanceY", 1, 1, 1, 2, Q("135 mm")))
sketch3.addConstraint(Sketcher.Constraint("DistanceX", 0, 1, 0, 2, Q("176.4 mm")))
sketch3.addConstraint(Sketcher.Constraint("DistanceX", -1, 1, 0, 2, Q("149 mm")))
sketch3.addConstraint(Sketcher.Constraint("DistanceY", 0, 2, -1, 1, Q("52.8 mm")))
pad3 = body.newObject("PartDesign::Pad", "Pad002")
pad3.Profile = sketch3
pad3.Length = 1

sketch4 = body.newObject("Sketcher::SketchObject", "Sketch003")
sketch4.AttachmentSupport = (doc.getObject("XZ_Plane"), [""])
sketch4.MapMode = "FlatFace"
sketch4.AttachmentOffset = App.Placement(V(0, 0, 1), App.Rotation())
add_polygon(sketch4, [(147, 30.9), (147, -1.5), (-25.4, -1.5), (-25.4, 30.9)])
sketch4.addConstraint(Sketcher.Constraint("Vertical", 0))
sketch4.addConstraint(Sketcher.Constraint("Horizontal", 1))
sketch4.addConstraint(Sketcher.Constraint("Vertical", 2))
sketch4.addConstraint(Sketcher.Constraint("Horizontal", 3))
sketch4.addConstraint(Sketcher.Constraint("DistanceX", 1, 2, 1, 1, Q("172.4 mm")))
sketch4.addConstraint(Sketcher.Constraint("DistanceY", 0, 2, 0, 1, Q("32.4 mm")))
sketch4.addConstraint(Sketcher.Constraint("DistanceX", -1, 1, 0, 2, Q("147 mm")))
sketch4.addConstraint(Sketcher.Constraint("DistanceY", 0, 2, -1, 1, Q("1.5 mm")))
pad4 = body.newObject("PartDesign::Pad", "Pad003")
pad4.Profile = sketch4
pad4.Length = 1
pad4.Reversed = True
doc.recompute()

fillet = body.newObject("PartDesign::Fillet", "Fillet")
fillet.Base = (pad4, edges_at(pad4, [
    (-23.9, 1, -27.15),
    (-1.5, 1, -27.15),
    (5.5, 1, -27.15),
    (27.9, 1, -27.15),
    (34.9, 1, -27.15),
    (57.3, 1, -27.15),
    (64.3, 1, -27.15),
    (86.7, 1, -27.15),
    (93.7, 1, -27.15),
    (116.1, 1, -27.15),
    (123.1, 1, -27.15),
    (145.5, 1, -27.15),
    (145.5, 1, 56.55),
    (123.1, 1, 56.55),
    (116.1, 1, 56.55),
    (93.7, 1, 56.55),
    (86.7, 1, 56.55),
    (64.3, 1, 56.55),
    (57.3, 1, 56.55),
    (34.9, 1, 56.55),
    (27.9, 1, 56.55),
    (5.5, 1, 56.55),
    (-23.9, 1, 56.55),
    (-1.5, 1, 56.55),
]))
fillet.Radius = 0.5

doc.recompute()
